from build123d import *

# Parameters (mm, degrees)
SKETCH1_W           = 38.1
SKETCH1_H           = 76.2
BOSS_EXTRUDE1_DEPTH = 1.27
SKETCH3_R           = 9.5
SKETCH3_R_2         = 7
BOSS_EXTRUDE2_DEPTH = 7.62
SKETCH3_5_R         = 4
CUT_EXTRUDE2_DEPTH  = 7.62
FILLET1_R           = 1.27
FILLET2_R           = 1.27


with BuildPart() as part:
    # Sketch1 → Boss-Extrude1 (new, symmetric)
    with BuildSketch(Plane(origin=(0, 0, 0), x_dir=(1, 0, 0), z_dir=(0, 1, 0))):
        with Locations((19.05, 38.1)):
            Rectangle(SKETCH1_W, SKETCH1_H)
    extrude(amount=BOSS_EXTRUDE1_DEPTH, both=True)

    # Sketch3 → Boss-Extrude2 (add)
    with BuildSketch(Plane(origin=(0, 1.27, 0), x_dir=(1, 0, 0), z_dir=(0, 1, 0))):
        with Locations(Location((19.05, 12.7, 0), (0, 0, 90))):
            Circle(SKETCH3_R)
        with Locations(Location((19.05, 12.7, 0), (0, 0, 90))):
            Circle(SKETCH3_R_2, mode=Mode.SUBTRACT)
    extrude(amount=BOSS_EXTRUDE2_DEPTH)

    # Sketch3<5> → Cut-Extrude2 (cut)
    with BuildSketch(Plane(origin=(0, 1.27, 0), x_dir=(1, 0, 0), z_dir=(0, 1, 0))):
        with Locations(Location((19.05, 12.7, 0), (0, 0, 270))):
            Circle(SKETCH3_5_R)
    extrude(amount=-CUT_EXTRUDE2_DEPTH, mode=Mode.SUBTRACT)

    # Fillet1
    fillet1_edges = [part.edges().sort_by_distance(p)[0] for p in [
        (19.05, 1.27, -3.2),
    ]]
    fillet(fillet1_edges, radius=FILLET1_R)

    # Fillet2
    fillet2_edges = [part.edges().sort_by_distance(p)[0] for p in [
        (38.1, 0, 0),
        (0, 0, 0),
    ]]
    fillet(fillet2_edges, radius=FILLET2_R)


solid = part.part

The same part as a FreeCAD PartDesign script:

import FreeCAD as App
import Part
import Sketcher
Q = App.Units.Quantity


def edges_at(feature, points):
    """Names of the edges that pass closest to the given points."""
    edges = feature.Shape.Edges
    near = lambda p: min(range(len(edges)), key=lambda i: edges[i].distToShape(Part.Vertex(*p))[0])
    return sorted({f"Edge{near(p) + 1}" for p in points})


def add_polygon(sketch, points):
    """Adds a closed chain of lines whose ends are joined by coincident constraints."""
    first, n = sketch.GeometryCount, len(points)
    for a, b in zip(points, points[1:] + points[:1]):
        sketch.addGeometry(Part.LineSegment(App.Vector(*a, 0), App.Vector(*b, 0)), False)
    for i in range(n):
        sketch.addConstraint(Sketcher.Constraint("Coincident", first + i, 2, first + (i + 1) % n, 1))

doc = App.newDocument("Part")
params = doc.addObject("Spreadsheet::Sheet", "Params")
for row, (alias, value) in enumerate([
    ("sketch1_height", "3 in"),
    ("sketch1_width", "1.5 in"),
    ("pad1_length", "0.1 in"),
    ("pad2_length", "0.3 in"),
    ("pocket1_length", "0.3 in"),
    ("fillet_radius", "0.05 in"),
    ("fillet2_radius", "0.05 in"),
], start=1):
    params.set(f"A{row}", alias)
    params.set(f"B{row}", "=" + value)
    params.setAlias(f"B{row}", alias)

body = doc.addObject("PartDesign::Body", "Body")

# Sketch on XZ plane
sketch1 = body.newObject("Sketcher::SketchObject", "Sketch")
sketch1.AttachmentSupport = (doc.getObject("XZ_Plane"), [""])
sketch1.MapMode = "FlatFace"
add_polygon(sketch1, [(0, -76.2), (0, 0), (38.1, 0), (38.1, -76.2)])  # lines 0-3
sketch1.addConstraint([
    Sketcher.Constraint("Vertical", 0),
    Sketcher.Constraint("Horizontal", 1),
    Sketcher.Constraint("Vertical", 2),
    Sketcher.Constraint("Horizontal", 3),
    Sketcher.Constraint("Coincident", 0, 2, -1, 1),
    Sketcher.Constraint("DistanceY", 0, 1, 0, 2, Q("3 in")),
    Sketcher.Constraint("DistanceX", 1, 1, 1, 2, Q("1.5 in")),
])
sketch1.setExpression("Constraints[9]", "Params.sketch1_height")
sketch1.setExpression("Constraints[10]", "Params.sketch1_width")
pad1 = body.newObject("PartDesign::Pad", "Pad")
pad1.Profile = sketch1
pad1.setExpression("Length", "Params.pad1_length")
pad1.Midplane = True

# Sketch on XZ plane
sketch2 = body.newObject("Sketcher::SketchObject", "Sketch001")
sketch2.AttachmentSupport = (doc.getObject("XZ_Plane"), [""])
sketch2.MapMode = "FlatFace"
sketch2.AttachmentOffset = App.Placement(App.Vector(0, 0, -0.05 * 25.4), App.Rotation())
sketch2.addGeometry([
    Part.Circle(App.Vector(19.05, -12.7, 0), App.Vector(0, 0, 1), 9.5),
    Part.Circle(App.Vector(19.05, -12.7, 0), App.Vector(0, 0, 1), 7),
], False)
sketch2.addConstraint([
    Sketcher.Constraint("Coincident", 1, 3, 0, 3),
    Sketcher.Constraint("DistanceY", 0, 3, -1, 1, Q("0.5 in")),
    Sketcher.Constraint("Diameter", 0, 19.0),
    Sketcher.Constraint("Diameter", 1, 14.0),
    Sketcher.Constraint("DistanceX", -1, 1, 0, 3, Q("0.75 in")),
])
pad2 = body.newObject("PartDesign::Pad", "Pad001")
pad2.Profile = sketch2
pad2.setExpression("Length", "Params.pad2_length")
pad2.Reversed = True

# Sketch on XZ plane
sketch3 = body.newObject("Sketcher::SketchObject", "Sketch002")
sketch3.AttachmentSupport = (doc.getObject("XZ_Plane"), [""])
sketch3.MapMode = "FlatFace"
sketch3.AttachmentOffset = App.Placement(App.Vector(0, 0, -0.05 * 25.4), App.Rotation())
sketch3.addGeometry(Part.Circle(App.Vector(19.05, -12.7, 0), App.Vector(0, 0, 1), 4), False)
sketch3.addConstraint([
    Sketcher.Constraint("DistanceY", 0, 3, -1, 1, Q("0.5 in")),
    Sketcher.Constraint("Diameter", 0, 8.0),
    Sketcher.Constraint("DistanceX", -1, 1, 0, 3, Q("0.75 in")),
])
pocket1 = body.newObject("PartDesign::Pocket", "Pocket")
pocket1.Profile = sketch3
pocket1.setExpression("Length", "Params.pocket1_length")
pocket1.Reversed = True
doc.recompute()

fillet = body.newObject("PartDesign::Fillet", "Fillet")
fillet.Base = (pocket1, edges_at(pocket1, [(19.05, 1.27, -3.2)]))
fillet.setExpression("Radius", "Params.fillet_radius")
doc.recompute()

fillet2 = body.newObject("PartDesign::Fillet", "Fillet001")
fillet2.Base = (fillet, edges_at(fillet, [(38.1, 0, 0), (0, 0, 0)]))
fillet2.setExpression("Radius", "Params.fillet2_radius")

doc.recompute()
